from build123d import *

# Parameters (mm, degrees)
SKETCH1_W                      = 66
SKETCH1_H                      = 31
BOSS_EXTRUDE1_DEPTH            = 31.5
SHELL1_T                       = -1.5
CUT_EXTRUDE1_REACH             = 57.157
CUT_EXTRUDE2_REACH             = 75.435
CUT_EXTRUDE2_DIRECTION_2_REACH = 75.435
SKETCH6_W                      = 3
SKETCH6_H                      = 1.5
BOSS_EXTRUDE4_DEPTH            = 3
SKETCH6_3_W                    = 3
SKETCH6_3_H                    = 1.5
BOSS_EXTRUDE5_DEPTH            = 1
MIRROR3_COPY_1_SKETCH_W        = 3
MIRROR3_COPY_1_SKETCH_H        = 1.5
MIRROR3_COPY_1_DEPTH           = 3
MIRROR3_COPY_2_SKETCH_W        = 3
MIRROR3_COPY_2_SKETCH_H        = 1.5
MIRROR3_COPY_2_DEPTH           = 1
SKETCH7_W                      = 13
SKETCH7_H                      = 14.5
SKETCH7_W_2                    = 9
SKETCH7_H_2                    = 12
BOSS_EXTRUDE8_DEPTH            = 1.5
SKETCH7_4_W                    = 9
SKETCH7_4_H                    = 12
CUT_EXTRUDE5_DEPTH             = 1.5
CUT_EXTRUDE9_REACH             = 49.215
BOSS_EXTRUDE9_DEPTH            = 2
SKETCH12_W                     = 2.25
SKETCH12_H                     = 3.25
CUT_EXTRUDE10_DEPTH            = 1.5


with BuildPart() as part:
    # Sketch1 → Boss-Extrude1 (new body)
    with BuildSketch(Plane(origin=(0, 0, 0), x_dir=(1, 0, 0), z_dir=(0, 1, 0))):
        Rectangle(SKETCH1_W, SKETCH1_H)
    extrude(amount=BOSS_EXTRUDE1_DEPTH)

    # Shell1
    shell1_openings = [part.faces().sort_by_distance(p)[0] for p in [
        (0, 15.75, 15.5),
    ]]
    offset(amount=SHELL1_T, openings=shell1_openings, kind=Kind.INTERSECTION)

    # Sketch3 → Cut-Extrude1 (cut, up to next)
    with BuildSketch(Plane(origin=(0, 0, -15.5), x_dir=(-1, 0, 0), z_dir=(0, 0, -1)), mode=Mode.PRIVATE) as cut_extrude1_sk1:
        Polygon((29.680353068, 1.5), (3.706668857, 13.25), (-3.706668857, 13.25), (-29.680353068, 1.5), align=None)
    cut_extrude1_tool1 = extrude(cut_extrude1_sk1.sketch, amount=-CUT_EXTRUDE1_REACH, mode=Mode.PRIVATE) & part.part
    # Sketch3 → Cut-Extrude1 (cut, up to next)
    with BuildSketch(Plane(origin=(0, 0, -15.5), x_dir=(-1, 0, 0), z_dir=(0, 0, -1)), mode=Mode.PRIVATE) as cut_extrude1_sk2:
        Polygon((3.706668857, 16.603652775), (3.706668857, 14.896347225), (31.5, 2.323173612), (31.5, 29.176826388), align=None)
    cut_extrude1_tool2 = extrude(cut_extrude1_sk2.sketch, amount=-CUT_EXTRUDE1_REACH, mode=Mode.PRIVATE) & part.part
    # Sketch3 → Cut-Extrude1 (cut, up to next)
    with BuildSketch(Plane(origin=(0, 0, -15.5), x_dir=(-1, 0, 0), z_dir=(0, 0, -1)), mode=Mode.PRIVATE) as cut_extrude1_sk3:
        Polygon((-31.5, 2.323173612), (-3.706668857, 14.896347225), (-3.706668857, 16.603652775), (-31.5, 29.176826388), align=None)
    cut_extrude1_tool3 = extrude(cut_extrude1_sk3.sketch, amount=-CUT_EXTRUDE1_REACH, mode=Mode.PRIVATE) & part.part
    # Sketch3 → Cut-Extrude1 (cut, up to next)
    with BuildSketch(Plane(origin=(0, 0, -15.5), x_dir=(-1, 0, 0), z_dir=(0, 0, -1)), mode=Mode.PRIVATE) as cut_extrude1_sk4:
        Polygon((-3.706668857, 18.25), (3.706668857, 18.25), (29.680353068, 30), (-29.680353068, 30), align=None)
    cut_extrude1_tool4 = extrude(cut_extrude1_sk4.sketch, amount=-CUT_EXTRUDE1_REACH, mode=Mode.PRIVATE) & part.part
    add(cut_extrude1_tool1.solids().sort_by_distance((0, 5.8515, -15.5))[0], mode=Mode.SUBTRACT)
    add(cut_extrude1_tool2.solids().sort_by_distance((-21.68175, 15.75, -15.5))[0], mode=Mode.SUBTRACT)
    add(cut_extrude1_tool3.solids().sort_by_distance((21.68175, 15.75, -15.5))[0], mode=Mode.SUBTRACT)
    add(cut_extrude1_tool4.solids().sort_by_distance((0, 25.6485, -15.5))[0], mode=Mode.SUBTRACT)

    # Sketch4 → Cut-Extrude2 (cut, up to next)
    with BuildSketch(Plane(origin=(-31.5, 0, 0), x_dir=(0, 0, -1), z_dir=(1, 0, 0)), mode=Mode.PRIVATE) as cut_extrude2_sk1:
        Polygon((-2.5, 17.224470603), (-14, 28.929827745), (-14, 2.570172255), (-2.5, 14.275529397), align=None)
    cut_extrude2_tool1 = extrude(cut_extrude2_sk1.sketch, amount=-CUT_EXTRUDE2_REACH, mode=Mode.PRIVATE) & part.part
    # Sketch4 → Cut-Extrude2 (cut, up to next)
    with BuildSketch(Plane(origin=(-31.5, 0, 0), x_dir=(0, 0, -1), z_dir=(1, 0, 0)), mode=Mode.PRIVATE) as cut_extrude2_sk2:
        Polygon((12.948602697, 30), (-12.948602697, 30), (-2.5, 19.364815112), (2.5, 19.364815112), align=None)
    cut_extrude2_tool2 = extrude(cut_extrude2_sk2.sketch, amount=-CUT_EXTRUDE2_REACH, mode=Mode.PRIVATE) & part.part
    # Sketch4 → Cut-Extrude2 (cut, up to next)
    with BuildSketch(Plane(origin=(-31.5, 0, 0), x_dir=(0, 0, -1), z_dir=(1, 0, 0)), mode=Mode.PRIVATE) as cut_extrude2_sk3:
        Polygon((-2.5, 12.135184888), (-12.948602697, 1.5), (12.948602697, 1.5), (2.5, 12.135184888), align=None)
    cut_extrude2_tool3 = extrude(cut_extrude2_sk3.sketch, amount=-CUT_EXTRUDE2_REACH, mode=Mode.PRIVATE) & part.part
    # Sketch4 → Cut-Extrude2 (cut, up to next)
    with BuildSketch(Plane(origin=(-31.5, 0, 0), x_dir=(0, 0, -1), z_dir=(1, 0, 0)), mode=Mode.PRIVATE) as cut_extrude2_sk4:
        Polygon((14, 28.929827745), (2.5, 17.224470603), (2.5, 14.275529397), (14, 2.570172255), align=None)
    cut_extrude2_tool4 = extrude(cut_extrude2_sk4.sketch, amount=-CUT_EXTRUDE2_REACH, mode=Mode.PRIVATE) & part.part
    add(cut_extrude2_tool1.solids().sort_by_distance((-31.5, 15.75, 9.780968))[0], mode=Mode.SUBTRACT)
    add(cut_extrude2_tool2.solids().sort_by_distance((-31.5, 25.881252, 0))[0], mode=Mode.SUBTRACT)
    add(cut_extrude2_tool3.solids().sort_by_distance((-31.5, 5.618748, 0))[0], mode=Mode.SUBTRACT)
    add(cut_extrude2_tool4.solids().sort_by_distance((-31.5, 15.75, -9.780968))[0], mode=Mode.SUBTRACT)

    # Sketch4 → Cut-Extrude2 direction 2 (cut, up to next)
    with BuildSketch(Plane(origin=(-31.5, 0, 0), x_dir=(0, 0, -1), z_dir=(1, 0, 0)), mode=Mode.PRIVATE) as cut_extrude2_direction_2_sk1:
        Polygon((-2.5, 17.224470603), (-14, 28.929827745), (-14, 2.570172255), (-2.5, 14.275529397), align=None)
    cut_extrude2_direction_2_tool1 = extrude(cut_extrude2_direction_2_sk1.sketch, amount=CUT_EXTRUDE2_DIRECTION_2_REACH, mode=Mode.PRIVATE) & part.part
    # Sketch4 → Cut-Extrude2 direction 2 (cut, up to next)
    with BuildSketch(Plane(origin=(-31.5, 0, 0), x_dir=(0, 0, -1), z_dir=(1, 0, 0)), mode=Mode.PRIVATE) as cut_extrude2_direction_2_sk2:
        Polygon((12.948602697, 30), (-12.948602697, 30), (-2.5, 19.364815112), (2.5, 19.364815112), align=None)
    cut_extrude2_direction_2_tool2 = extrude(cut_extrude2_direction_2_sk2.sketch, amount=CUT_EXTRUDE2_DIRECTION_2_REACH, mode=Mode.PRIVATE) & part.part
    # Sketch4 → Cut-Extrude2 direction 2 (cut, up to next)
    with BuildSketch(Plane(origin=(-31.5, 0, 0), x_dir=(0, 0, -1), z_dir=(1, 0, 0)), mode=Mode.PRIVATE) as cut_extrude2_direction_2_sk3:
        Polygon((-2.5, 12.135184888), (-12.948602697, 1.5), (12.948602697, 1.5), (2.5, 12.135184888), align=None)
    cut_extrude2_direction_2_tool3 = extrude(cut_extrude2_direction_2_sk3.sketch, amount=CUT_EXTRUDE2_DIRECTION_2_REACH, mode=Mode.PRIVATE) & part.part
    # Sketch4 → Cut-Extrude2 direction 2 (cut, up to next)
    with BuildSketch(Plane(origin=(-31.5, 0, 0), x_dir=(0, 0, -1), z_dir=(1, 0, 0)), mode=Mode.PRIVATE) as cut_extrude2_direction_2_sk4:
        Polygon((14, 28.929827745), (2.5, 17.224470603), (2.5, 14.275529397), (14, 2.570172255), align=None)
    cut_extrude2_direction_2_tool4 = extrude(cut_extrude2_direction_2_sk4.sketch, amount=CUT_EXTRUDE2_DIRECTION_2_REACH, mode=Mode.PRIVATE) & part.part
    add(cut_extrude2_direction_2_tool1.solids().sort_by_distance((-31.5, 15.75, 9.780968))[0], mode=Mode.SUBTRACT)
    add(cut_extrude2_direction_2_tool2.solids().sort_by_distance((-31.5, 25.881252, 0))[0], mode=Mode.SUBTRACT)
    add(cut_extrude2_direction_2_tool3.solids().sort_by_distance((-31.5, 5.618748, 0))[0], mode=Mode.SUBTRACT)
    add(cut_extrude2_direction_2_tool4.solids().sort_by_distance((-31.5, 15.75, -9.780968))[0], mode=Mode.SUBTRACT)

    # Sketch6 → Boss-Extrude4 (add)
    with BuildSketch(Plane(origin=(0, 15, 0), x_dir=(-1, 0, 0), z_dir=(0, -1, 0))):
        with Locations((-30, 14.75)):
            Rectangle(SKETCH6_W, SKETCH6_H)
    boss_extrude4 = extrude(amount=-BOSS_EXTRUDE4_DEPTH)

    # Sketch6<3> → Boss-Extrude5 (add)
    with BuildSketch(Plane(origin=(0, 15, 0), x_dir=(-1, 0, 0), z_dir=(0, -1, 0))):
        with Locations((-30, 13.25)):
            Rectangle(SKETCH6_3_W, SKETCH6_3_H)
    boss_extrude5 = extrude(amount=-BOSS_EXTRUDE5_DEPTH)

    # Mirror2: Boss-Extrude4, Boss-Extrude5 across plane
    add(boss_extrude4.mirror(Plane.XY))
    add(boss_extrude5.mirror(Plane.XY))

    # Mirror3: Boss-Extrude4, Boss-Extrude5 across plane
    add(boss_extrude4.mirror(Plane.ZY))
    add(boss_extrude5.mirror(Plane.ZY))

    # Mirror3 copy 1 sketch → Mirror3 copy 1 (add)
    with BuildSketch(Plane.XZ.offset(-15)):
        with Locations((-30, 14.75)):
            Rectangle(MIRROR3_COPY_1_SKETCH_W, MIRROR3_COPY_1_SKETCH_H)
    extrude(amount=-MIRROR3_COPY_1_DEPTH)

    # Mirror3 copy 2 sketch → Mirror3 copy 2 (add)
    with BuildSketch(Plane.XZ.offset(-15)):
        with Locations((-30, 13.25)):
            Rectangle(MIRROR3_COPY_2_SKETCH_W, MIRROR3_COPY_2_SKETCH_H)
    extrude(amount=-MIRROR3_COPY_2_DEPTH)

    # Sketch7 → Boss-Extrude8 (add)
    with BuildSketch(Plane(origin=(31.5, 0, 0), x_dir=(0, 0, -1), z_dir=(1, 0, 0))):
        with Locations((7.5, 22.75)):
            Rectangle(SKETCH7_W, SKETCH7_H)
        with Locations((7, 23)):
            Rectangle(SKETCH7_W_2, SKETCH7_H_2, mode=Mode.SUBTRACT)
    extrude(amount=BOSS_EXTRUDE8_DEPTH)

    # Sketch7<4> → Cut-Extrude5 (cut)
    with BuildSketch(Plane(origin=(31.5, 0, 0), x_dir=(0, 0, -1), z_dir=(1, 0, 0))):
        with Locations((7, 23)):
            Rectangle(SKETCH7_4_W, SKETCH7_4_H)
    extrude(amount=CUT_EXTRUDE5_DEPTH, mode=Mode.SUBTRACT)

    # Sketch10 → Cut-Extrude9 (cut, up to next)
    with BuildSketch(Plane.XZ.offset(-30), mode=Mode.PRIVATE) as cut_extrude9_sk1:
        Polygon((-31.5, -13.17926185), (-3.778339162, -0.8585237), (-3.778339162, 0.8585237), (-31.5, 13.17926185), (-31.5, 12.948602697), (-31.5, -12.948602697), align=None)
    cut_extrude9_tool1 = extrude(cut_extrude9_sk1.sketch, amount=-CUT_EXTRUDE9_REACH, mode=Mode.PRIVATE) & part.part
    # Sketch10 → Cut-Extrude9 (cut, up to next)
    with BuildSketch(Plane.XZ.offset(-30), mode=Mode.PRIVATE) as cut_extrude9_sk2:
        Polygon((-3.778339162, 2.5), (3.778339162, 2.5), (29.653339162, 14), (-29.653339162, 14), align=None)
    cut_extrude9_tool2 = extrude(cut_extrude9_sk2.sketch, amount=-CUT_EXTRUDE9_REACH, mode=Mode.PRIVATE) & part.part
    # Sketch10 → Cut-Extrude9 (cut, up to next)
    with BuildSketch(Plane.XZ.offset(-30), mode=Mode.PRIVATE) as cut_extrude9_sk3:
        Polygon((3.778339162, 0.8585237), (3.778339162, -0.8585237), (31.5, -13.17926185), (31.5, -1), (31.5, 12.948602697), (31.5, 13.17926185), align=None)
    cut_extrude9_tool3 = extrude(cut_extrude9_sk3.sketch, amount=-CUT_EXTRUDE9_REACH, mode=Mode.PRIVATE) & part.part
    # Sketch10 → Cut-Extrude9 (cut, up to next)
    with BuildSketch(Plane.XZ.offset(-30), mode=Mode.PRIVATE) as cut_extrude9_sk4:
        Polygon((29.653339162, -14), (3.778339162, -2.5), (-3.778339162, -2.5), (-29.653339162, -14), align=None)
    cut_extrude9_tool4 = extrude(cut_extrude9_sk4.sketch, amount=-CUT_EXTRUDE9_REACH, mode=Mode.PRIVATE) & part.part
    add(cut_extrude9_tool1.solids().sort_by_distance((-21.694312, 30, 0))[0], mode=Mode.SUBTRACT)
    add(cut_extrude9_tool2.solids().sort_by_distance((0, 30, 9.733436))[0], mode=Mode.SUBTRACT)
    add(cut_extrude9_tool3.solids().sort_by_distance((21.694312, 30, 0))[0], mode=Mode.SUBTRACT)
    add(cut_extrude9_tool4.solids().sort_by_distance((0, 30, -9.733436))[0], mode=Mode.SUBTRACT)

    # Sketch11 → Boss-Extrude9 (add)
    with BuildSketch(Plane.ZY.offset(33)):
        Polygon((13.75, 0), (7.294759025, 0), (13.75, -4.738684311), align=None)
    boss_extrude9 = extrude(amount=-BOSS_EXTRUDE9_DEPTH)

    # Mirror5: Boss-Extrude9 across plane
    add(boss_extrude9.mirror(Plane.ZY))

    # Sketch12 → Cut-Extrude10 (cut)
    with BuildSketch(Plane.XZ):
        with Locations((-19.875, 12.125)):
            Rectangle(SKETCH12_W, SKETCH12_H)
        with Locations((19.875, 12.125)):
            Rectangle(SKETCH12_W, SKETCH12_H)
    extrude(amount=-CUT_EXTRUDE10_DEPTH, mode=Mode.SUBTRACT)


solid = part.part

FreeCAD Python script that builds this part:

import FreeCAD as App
import Part
import Sketcher

V = App.Vector
Q = App.Units.Quantity


def faces_at(feature, points):
    """Names of the faces that lie closest to the given points."""
    faces = feature.Shape.Faces
    near = lambda p: min(range(len(faces)), key=lambda i: faces[i].distToShape(Part.Vertex(*p))[0])
    return sorted({f"Face{near(p) + 1}" for p in points})


def add_polygon(sketch, points):
    """Adds a closed chain of lines whose ends are joined by coincident constraints."""
    first, n = sketch.GeometryCount, len(points)
    for a, b in zip(points, points[1:] + points[:1]):
        sketch.addGeometry(Part.LineSegment(App.Vector(*a, 0), App.Vector(*b, 0)), False)
    for i in range(n):
        sketch.addConstraint(Sketcher.Constraint("Coincident", first + i, 2, first + (i + 1) % n, 1))

doc = App.newDocument("Part")
body = doc.addObject("PartDesign::Body", "Body")

# Sketch on XZ plane
sketch1 = body.newObject("Sketcher::SketchObject", "Sketch")
sketch1.AttachmentSupport = (doc.getObject("XZ_Plane"), [""])
sketch1.MapMode = "FlatFace"
add_polygon(sketch1, [(-33, -15.5), (-33, 15.5), (33, 15.5), (33, -15.5)])  # lines 0-3
sketch1.addConstraint(Sketcher.Constraint("Vertical", 0))
sketch1.addConstraint(Sketcher.Constraint("Horizontal", 1))
sketch1.addConstraint(Sketcher.Constraint("Vertical", 2))
sketch1.addConstraint(Sketcher.Constraint("Horizontal", 3))
sketch1.addConstraint(Sketcher.Constraint("Symmetric", 0, 2, 2, 2, -1, 1))
sketch1.addConstraint(Sketcher.Constraint("DistanceX", 1, 1, 1, 2, Q("66 mm")))
sketch1.addConstraint(Sketcher.Constraint("DistanceY", 0, 1, 0, 2, Q("31 mm")))
pad1 = body.newObject("PartDesign::Pad", "Pad")
pad1.Profile = sketch1
pad1.Length = 31.5
pad1.Reversed = True
doc.recompute()

thickness = body.newObject("PartDesign::Thickness", "Thickness")
thickness.Base = (pad1, faces_at(pad1, [(0, 15.75, 15.5)]))
thickness.Value = 1.5
thickness.Reversed = True
thickness.Join = "Intersection"

# Sketch on XY plane
sketch2 = body.newObject("Sketcher::SketchObject", "Sketch001")
sketch2.AttachmentSupport = (doc.getObject("XY_Plane"), [""])
sketch2.MapMode = "FlatFace"
sketch2.AttachmentOffset = App.Placement(V(0, 0, -15.5), App.Rotation())
add_polygon(sketch2, [(-29.680353, 1.5), (-3.706669, 13.25), (3.706669, 13.25), (29.680353, 1.5)])  # lines 0-3
sketch2.addConstraint(Sketcher.Constraint("Horizontal", 1))
sketch2.addConstraint(Sketcher.Constraint("Horizontal", 3))
sketch2.addConstraint(Sketcher.Constraint("Equal", 0, 2))
sketch2.addConstraint(Sketcher.Constraint("DistanceY", -1, 1, 2, 2, Q("1.5 mm")))
sketch2.addConstraint(Sketcher.Constraint("DistanceY", -1, 1, 0, 2, Q("13.25 mm")))
sketch2.addConstraint(Sketcher.Constraint("Distance", 0, Q("28.507802 mm")))
sketch2.addConstraint(Sketcher.Constraint("DistanceX", 1, 1, 1, 2, Q("7.413338 mm")))
sketch2.addConstraint(Sketcher.Constraint("DistanceX", 0, 2, -1, 1, Q("3.706669 mm")))
pocket1 = body.newObject("PartDesign::Pocket", "Pocket")
pocket1.Profile = sketch2
pocket1.Type = "UpToFirst"
pocket1.Reversed = True

# Sketch on XY plane
sketch3 = body.newObject("Sketcher::SketchObject", "Sketch002")
sketch3.AttachmentSupport = (doc.getObject("XY_Plane"), [""])
sketch3.MapMode = "FlatFace"
sketch3.AttachmentOffset = App.Placement(V(0, 0, -15.5), App.Rotation())
add_polygon(sketch3, [(-3.706669, 16.603653), (-3.706669, 14.896347), (-31.5, 2.323174), (-31.5, 29.176826)])  # lines 0-3
sketch3.addConstraint(Sketcher.Constraint("Vertical", 0))
sketch3.addConstraint(Sketcher.Constraint("Vertical", 2))
sketch3.addConstraint(Sketcher.Constraint("Equal", 1, 3))
sketch3.addConstraint(Sketcher.Constraint("DistanceX", 1, 2, -1, 1, Q("31.5 mm")))
sketch3.addConstraint(Sketcher.Constraint("DistanceY", 0, 2, 0, 1, Q("1.707306 mm")))
sketch3.addConstraint(Sketcher.Constraint("DistanceY", 2, 1, 2, 2, Q("26.853653 mm")))
sketch3.addConstraint(Sketcher.Constraint("DistanceX", 0, 2, -1, 1, Q("3.706669 mm")))
sketch3.addConstraint(Sketcher.Constraint("DistanceY", -1, 1, 0, 2, Q("14.896347 mm")))
pocket2 = body.newObject("PartDesign::Pocket", "Pocket001")
pocket2.Profile = sketch3
pocket2.Type = "UpToFirst"
pocket2.Reversed = True

# Sketch on XY plane
sketch4 = body.newObject("Sketcher::SketchObject", "Sketch003")
sketch4.AttachmentSupport = (doc.getObject("XY_Plane"), [""])
sketch4.MapMode = "FlatFace"
sketch4.AttachmentOffset = App.Placement(V(0, 0, -15.5), App.Rotation())
add_polygon(sketch4, [(31.5, 2.323174), (3.706669, 14.896347), (3.706669, 16.603653), (31.5, 29.176826)])  # lines 0-3
sketch4.addConstraint(Sketcher.Constraint("Vertical", 1))
sketch4.addConstraint(Sketcher.Constraint("Vertical", 3))
sketch4.addConstraint(Sketcher.Constraint("Equal", 0, 2))
sketch4.addConstraint(Sketcher.Constraint("DistanceX", -1, 1, 2, 2, Q("31.5 mm")))
sketch4.addConstraint(Sketcher.Constraint("DistanceY", 1, 1, 1, 2, Q("1.707306 mm")))
sketch4.addConstraint(Sketcher.Constraint("DistanceY", 3, 2, 3, 1, Q("26.853653 mm")))
sketch4.addConstraint(Sketcher.Constraint("DistanceX", -1, 1, 0, 2, Q("3.706669 mm")))
sketch4.addConstraint(Sketcher.Constraint("DistanceY", -1, 1, 0, 2, Q("14.896347 mm")))
pocket3 = body.newObject("PartDesign::Pocket", "Pocket002")
pocket3.Profile = sketch4
pocket3.Type = "UpToFirst"
pocket3.Reversed = True

# Sketch on XY plane
sketch5 = body.newObject("Sketcher::SketchObject", "Sketch004")
sketch5.AttachmentSupport = (doc.getObject("XY_Plane"), [""])
sketch5.MapMode = "FlatFace"
sketch5.AttachmentOffset = App.Placement(V(0, 0, -15.5), App.Rotation())
add_polygon(sketch5, [(3.706669, 18.25), (-3.706669, 18.25), (-29.680353, 30), (29.680353, 30)])  # lines 0-3
sketch5.addConstraint(Sketcher.Constraint("Horizontal", 0))
sketch5.addConstraint(Sketcher.Constraint("Horizontal", 2))
sketch5.addConstraint(Sketcher.Constraint("Equal", 1, 3))
sketch5.addConstraint(Sketcher.Constraint("DistanceY", -1, 1, 1, 2, Q("30 mm")))
sketch5.addConstraint(Sketcher.Constraint("DistanceY", -1, 1, 0, 2, Q("18.25 mm")))
sketch5.addConstraint(Sketcher.Constraint("Distance", 1, Q("28.507802 mm")))
sketch5.addConstraint(Sketcher.Constraint("DistanceX", 0, 2, 0, 1, Q("7.413338 mm")))
sketch5.addConstraint(Sketcher.Constraint("DistanceX", 0, 2, -1, 1, Q("3.706669 mm")))
pocket4 = body.newObject("PartDesign::Pocket", "Pocket003")
pocket4.Profile = sketch5
pocket4.Type = "UpToFirst"
pocket4.Reversed = True

# Sketch on YZ plane
sketch6 = body.newObject("Sketcher::SketchObject", "Sketch005")
sketch6.AttachmentSupport = (doc.getObject("YZ_Plane"), [""])
sketch6.MapMode = "FlatFace"
sketch6.AttachmentOffset = App.Placement(V(0, 0, -31.5), App.Rotation())
add_polygon(sketch6, [(17.224471, 2.5), (28.929828, 14), (2.570172, 14), (14.275529, 2.5)])  # lines 0-3
sketch6.addConstraint(Sketcher.Constraint("Horizontal", 1))
sketch6.addConstraint(Sketcher.Constraint("Horizontal", 3))
sketch6.addConstraint(Sketcher.Constraint("Equal", 0, 2))
sketch6.addConstraint(Sketcher.Constraint("DistanceY", -1, 1, 0, 2, Q("14 mm")))
sketch6.addConstraint(Sketcher.Constraint("DistanceY", -1, 1, 2, 2, Q("2.5 mm")))
sketch6.addConstraint(Sketcher.Constraint("DistanceX", 3, 1, 3, 2, Q("2.948941 mm")))
sketch6.addConstraint(Sketcher.Constraint("DistanceX", 2, 2, 0, 2, Q("14.654298 mm")))
sketch6.addConstraint(Sketcher.Constraint("DistanceX", -1, 1, 2, 2, Q("14.275529 mm")))
pocket5 = body.newObject("PartDesign::Pocket", "Pocket004")
pocket5.Profile = sketch6
pocket5.Type = "UpToFirst"

# Sketch on YZ plane
sketch7 = body.newObject("Sketcher::SketchObject", "Sketch006")
sketch7.AttachmentSupport = (doc.getObject("YZ_Plane"), [""])
sketch7.MapMode = "FlatFace"
sketch7.AttachmentOffset = App.Placement(V(0, 0, -31.5), App.Rotation())
add_polygon(sketch7, [(30, -12.948603), (30, 12.948603), (19.364815, 2.5), (19.364815, -2.5)])  # lines 0-3
sketch7.addConstraint(Sketcher.Constraint("Vertical", 0))
sketch7.addConstraint(Sketcher.Constraint("Vertical", 2))
sketch7.addConstraint(Sketcher.Constraint("Equal", 1, 3))
sketch7.addConstraint(Sketcher.Constraint("DistanceY", 2, 2, 2, 1, Q("5 mm")))
sketch7.addConstraint(Sketcher.Constraint("DistanceX", -1, 1, 0, 2, Q("30 mm")))
sketch7.addConstraint(Sketcher.Constraint("DistanceY", -1, 1, 1, 2, Q("2.5 mm")))
sketch7.addConstraint(Sketcher.Constraint("DistanceY", 0, 1, 0, 2, Q("25.897205 mm")))
sketch7.addConstraint(Sketcher.Constraint("Distance", 1, Q("14.909073 mm")))
pocket6 = body.newObject("PartDesign::Pocket", "Pocket005")
pocket6.Profile = sketch7
pocket6.Type = "UpToFirst"

# Sketch on YZ plane
sketch8 = body.newObject("Sketcher::SketchObject", "Sketch007")
sketch8.AttachmentSupport = (doc.getObject("YZ_Plane"), [""])
sketch8.MapMode = "FlatFace"
sketch8.AttachmentOffset = App.Placement(V(0, 0, -31.5), App.Rotation())
add_polygon(sketch8, [(12.135185, 2.5), (1.5, 12.948603), (1.5, -12.948603), (12.135185, -2.5)])  # lines 0-3
sketch8.addConstraint(Sketcher.Constraint("Vertical", 1))
sketch8.addConstraint(Sketcher.Constraint("Vertical", 3))
sketch8.addConstraint(Sketcher.Constraint("Equal", 0, 2))
sketch8.addConstraint(Sketcher.Constraint("DistanceY", 3, 1, 3, 2, Q("5 mm")))
sketch8.addConstraint(Sketcher.Constraint("DistanceX", -1, 1, 0, 2, Q("1.5 mm")))
sketch8.addConstraint(Sketcher.Constraint("DistanceY", 2, 2, -1, 1, Q("2.5 mm")))
sketch8.addConstraint(Sketcher.Constraint("DistanceY", 1, 2, 1, 1, Q("25.897205 mm")))
sketch8.addConstraint(Sketcher.Constraint("Distance", 0, Q("14.909073 mm")))
pocket7 = body.newObject("PartDesign::Pocket", "Pocket006")
pocket7.Profile = sketch8
pocket7.Type = "UpToFirst"

# Sketch on YZ plane
sketch9 = body.newObject("Sketcher::SketchObject", "Sketch008")
sketch9.AttachmentSupport = (doc.getObject("YZ_Plane"), [""])
sketch9.MapMode = "FlatFace"
sketch9.AttachmentOffset = App.Placement(V(0, 0, -31.5), App.Rotation())
add_polygon(sketch9, [(28.929828, -14), (17.224471, -2.5), (14.275529, -2.5), (2.570172, -14)])  # lines 0-3
sketch9.addConstraint(Sketcher.Constraint("Horizontal", 1))
sketch9.addConstraint(Sketcher.Constraint("Horizontal", 3))
sketch9.addConstraint(Sketcher.Constraint("Equal", 0, 2))
sketch9.addConstraint(Sketcher.Constraint("DistanceY", 2, 2, -1, 1, Q("14 mm")))
sketch9.addConstraint(Sketcher.Constraint("DistanceY", 0, 2, -1, 1, Q("2.5 mm")))
sketch9.addConstraint(Sketcher.Constraint("DistanceX", 1, 2, 1, 1, Q("2.948941 mm")))
sketch9.addConstraint(Sketcher.Constraint("DistanceX", 2, 2, 0, 2, Q("14.654298 mm")))
sketch9.addConstraint(Sketcher.Constraint("DistanceX", -1, 1, 0, 2, Q("17.224471 mm")))
pocket8 = body.newObject("PartDesign::Pocket", "Pocket007")
pocket8.Profile = sketch9
pocket8.Type = "UpToFirst"

# Sketch on YZ plane
sketch10 = body.newObject("Sketcher::SketchObject", "Sketch009")
sketch10.AttachmentSupport = (doc.getObject("YZ_Plane"), [""])
sketch10.MapMode = "FlatFace"
sketch10.AttachmentOffset = App.Placement(V(0, 0, -31.5), App.Rotation())
add_polygon(sketch10, [(17.224471, 2.5), (28.929828, 14), (2.570172, 14), (14.275529, 2.5)])  # lines 0-3
sketch10.addConstraint(Sketcher.Constraint("Horizontal", 1))
sketch10.addConstraint(Sketcher.Constraint("Horizontal", 3))
sketch10.addConstraint(Sketcher.Constraint("Equal", 0, 2))
sketch10.addConstraint(Sketcher.Constraint("DistanceY", -1, 1, 0, 2, Q("14 mm")))
sketch10.addConstraint(Sketcher.Constraint("DistanceY", -1, 1, 2, 2, Q("2.5 mm")))
sketch10.addConstraint(Sketcher.Constraint("DistanceX", 3, 1, 3, 2, Q("2.948941 mm")))
sketch10.addConstraint(Sketcher.Constraint("DistanceX", 2, 2, 0, 2, Q("14.654298 mm")))
sketch10.addConstraint(Sketcher.Constraint("DistanceX", -1, 1, 2, 2, Q("14.275529 mm")))
pocket9 = body.newObject("PartDesign::Pocket", "Pocket008")
pocket9.Profile = sketch10
pocket9.Length = 64.5
pocket9.Reversed = True

# Sketch on YZ plane
sketch11 = body.newObject("Sketcher::SketchObject", "Sketch010")
sketch11.AttachmentSupport = (doc.getObject("YZ_Plane"), [""])
sketch11.MapMode = "FlatFace"
sketch11.AttachmentOffset = App.Placement(V(0, 0, -31.5), App.Rotation())
add_polygon(sketch11, [(30, -12.948603), (30, 12.948603), (19.364815, 2.5), (19.364815, -2.5)])  # lines 0-3
sketch11.addConstraint(Sketcher.Constraint("Vertical", 0))
sketch11.addConstraint(Sketcher.Constraint("Vertical", 2))
sketch11.addConstraint(Sketcher.Constraint("Equal", 1, 3))
sketch11.addConstraint(Sketcher.Constraint("DistanceY", 2, 2, 2, 1, Q("5 mm")))
sketch11.addConstraint(Sketcher.Constraint("DistanceX", -1, 1, 0, 2, Q("30 mm")))
sketch11.addConstraint(Sketcher.Constraint("DistanceY", -1, 1, 1, 2, Q("2.5 mm")))
sketch11.addConstraint(Sketcher.Constraint("DistanceY", 0, 1, 0, 2, Q("25.897205 mm")))
sketch11.addConstraint(Sketcher.Constraint("Distance", 1, Q("14.909073 mm")))
pocket10 = body.newObject("PartDesign::Pocket", "Pocket009")
pocket10.Profile = sketch11
pocket10.Length = 64.5
pocket10.Reversed = True

# Sketch on YZ plane
sketch12 = body.newObject("Sketcher::SketchObject", "Sketch011")
sketch12.AttachmentSupport = (doc.getObject("YZ_Plane"), [""])
sketch12.MapMode = "FlatFace"
sketch12.AttachmentOffset = App.Placement(V(0, 0, -31.5), App.Rotation())
add_polygon(sketch12, [(12.135185, 2.5), (1.5, 12.948603), (1.5, -12.948603), (12.135185, -2.5)])  # lines 0-3
sketch12.addConstraint(Sketcher.Constraint("Vertical", 1))
sketch12.addConstraint(Sketcher.Constraint("Vertical", 3))
sketch12.addConstraint(Sketcher.Constraint("Equal", 0, 2))
sketch12.addConstraint(Sketcher.Constraint("DistanceY", 3, 1, 3, 2, Q("5 mm")))
sketch12.addConstraint(Sketcher.Constraint("DistanceX", -1, 1, 0, 2, Q("1.5 mm")))
sketch12.addConstraint(Sketcher.Constraint("DistanceY", 2, 2, -1, 1, Q("2.5 mm")))
sketch12.addConstraint(Sketcher.Constraint("DistanceY", 1, 2, 1, 1, Q("25.897205 mm")))
sketch12.addConstraint(Sketcher.Constraint("Distance", 0, Q("14.909073 mm")))
pocket11 = body.newObject("PartDesign::Pocket", "Pocket010")
pocket11.Profile = sketch12
pocket11.Length = 64.5
pocket11.Reversed = True

# Sketch on YZ plane
sketch13 = body.newObject("Sketcher::SketchObject", "Sketch012")
sketch13.AttachmentSupport = (doc.getObject("YZ_Plane"), [""])
sketch13.MapMode = "FlatFace"
sketch13.AttachmentOffset = App.Placement(V(0, 0, -31.5), App.Rotation())
add_polygon(sketch13, [(28.929828, -14), (17.224471, -2.5), (14.275529, -2.5), (2.570172, -14)])  # lines 0-3
sketch13.addConstraint(Sketcher.Constraint("Horizontal", 1))
sketch13.addConstraint(Sketcher.Constraint("Horizontal", 3))
sketch13.addConstraint(Sketcher.Constraint("Equal", 0, 2))
sketch13.addConstraint(Sketcher.Constraint("DistanceY", 2, 2, -1, 1, Q("14 mm")))
sketch13.addConstraint(Sketcher.Constraint("DistanceY", 0, 2, -1, 1, Q("2.5 mm")))
sketch13.addConstraint(Sketcher.Constraint("DistanceX", 1, 2, 1, 1, Q("2.948941 mm")))
sketch13.addConstraint(Sketcher.Constraint("DistanceX", 2, 2, 0, 2, Q("14.654298 mm")))
sketch13.addConstraint(Sketcher.Constraint("DistanceX", -1, 1, 0, 2, Q("17.224471 mm")))
pocket12 = body.newObject("PartDesign::Pocket", "Pocket011")
pocket12.Profile = sketch13
pocket12.Length = 64.5
pocket12.Reversed = True

# Sketch on XZ plane
sketch14 = body.newObject("Sketcher::SketchObject", "Sketch013")
sketch14.AttachmentSupport = (doc.getObject("XZ_Plane"), [""])
sketch14.MapMode = "FlatFace"
sketch14.AttachmentOffset = App.Placement(V(0, 0, -15), App.Rotation())
add_polygon(sketch14, [(31.5, -15.5), (31.5, -14), (28.5, -14), (28.5, -15.5)])  # lines 0-3
sketch14.addConstraint(Sketcher.Constraint("Vertical", 0))
sketch14.addConstraint(Sketcher.Constraint("Horizontal", 1))
sketch14.addConstraint(Sketcher.Constraint("Vertical", 2))
sketch14.addConstraint(Sketcher.Constraint("Horizontal", 3))
sketch14.addConstraint(Sketcher.Constraint("DistanceX", 1, 2, 1, 1, Q("3 mm")))
sketch14.addConstraint(Sketcher.Constraint("DistanceY", 0, 1, 0, 2, Q("1.5 mm")))
sketch14.addConstraint(Sketcher.Constraint("DistanceY", 0, 2, -1, 1, Q("14 mm")))
sketch14.addConstraint(Sketcher.Constraint("DistanceX", -1, 1, 0, 2, Q("31.5 mm")))
pad2 = body.newObject("PartDesign::Pad", "Pad001")
pad2.Profile = sketch14
pad2.Length = 3
pad2.Reversed = True

# Sketch on XZ plane
sketch15 = body.newObject("Sketcher::SketchObject", "Sketch014")
sketch15.AttachmentSupport = (doc.getObject("XZ_Plane"), [""])
sketch15.MapMode = "FlatFace"
sketch15.AttachmentOffset = App.Placement(V(0, 0, -15), App.Rotation())
add_polygon(sketch15, [(31.5, -14), (31.5, -12.5), (28.5, -12.5), (28.5, -14)])  # lines 0-3
sketch15.addConstraint(Sketcher.Constraint("Vertical", 0))
sketch15.addConstraint(Sketcher.Constraint("Horizontal", 1))
sketch15.addConstraint(Sketcher.Constraint("Vertical", 2))
sketch15.addConstraint(Sketcher.Constraint("Horizontal", 3))
sketch15.addConstraint(Sketcher.Constraint("DistanceX", 1, 2, 1, 1, Q("3 mm")))
sketch15.addConstraint(Sketcher.Constraint("DistanceY", 0, 1, 0, 2, Q("1.5 mm")))
sketch15.addConstraint(Sketcher.Constraint("DistanceY", 2, 2, -1, 1, Q("14 mm")))
sketch15.addConstraint(Sketcher.Constraint("DistanceX", -1, 1, 0, 2, Q("31.5 mm")))
pad3 = body.newObject("PartDesign::Pad", "Pad002")
pad3.Profile = sketch15
pad3.Length = 1
pad3.Reversed = True
doc.recompute()

mirrored = body.newObject("PartDesign::Mirrored", "Mirrored")
mirrored.Originals = [pad2, pad3]
mirrored.MirrorPlane = (doc.getObject("XY_Plane"), [""])
body.Tip = mirrored
doc.recompute()

mirrored2 = body.newObject("PartDesign::Mirrored", "Mirrored001")
mirrored2.Originals = [pad2, pad3]
mirrored2.MirrorPlane = (doc.getObject("YZ_Plane"), [""])
body.Tip = mirrored2

# Sketch on XZ plane
sketch16 = body.newObject("Sketcher::SketchObject", "Sketch015")
sketch16.AttachmentSupport = (doc.getObject("XZ_Plane"), [""])
sketch16.MapMode = "FlatFace"
sketch16.AttachmentOffset = App.Placement(V(0, 0, -15), App.Rotation())
add_polygon(sketch16, [(-31.5, 15.5), (-31.5, 14), (-28.5, 14), (-28.5, 15.5)])  # lines 0-3
sketch16.addConstraint(Sketcher.Constraint("Vertical", 0))
sketch16.addConstraint(Sketcher.Constraint("Horizontal", 1))
sketch16.addConstraint(Sketcher.Constraint("Vertical", 2))
sketch16.addConstraint(Sketcher.Constraint("Horizontal", 3))
sketch16.addConstraint(Sketcher.Constraint("DistanceX", 1, 1, 1, 2, Q("3 mm")))
sketch16.addConstraint(Sketcher.Constraint("DistanceY", 0, 2, 0, 1, Q("1.5 mm")))
sketch16.addConstraint(Sketcher.Constraint("DistanceY", -1, 1, 0, 2, Q("14 mm")))
sketch16.addConstraint(Sketcher.Constraint("DistanceX", 0, 2, -1, 1, Q("31.5 mm")))
pad4 = body.newObject("PartDesign::Pad", "Pad003")
pad4.Profile = sketch16
pad4.Length = 3
pad4.Reversed = True

# Sketch on XZ plane
sketch17 = body.newObject("Sketcher::SketchObject", "Sketch016")
sketch17.AttachmentSupport = (doc.getObject("XZ_Plane"), [""])
sketch17.MapMode = "FlatFace"
sketch17.AttachmentOffset = App.Placement(V(0, 0, -15), App.Rotation())
add_polygon(sketch17, [(-31.5, 14), (-31.5, 12.5), (-28.5, 12.5), (-28.5, 14)])  # lines 0-3
sketch17.addConstraint(Sketcher.Constraint("Vertical", 0))
sketch17.addConstraint(Sketcher.Constraint("Horizontal", 1))
sketch17.addConstraint(Sketcher.Constraint("Vertical", 2))
sketch17.addConstraint(Sketcher.Constraint("Horizontal", 3))
sketch17.addConstraint(Sketcher.Constraint("DistanceX", 1, 1, 1, 2, Q("3 mm")))
sketch17.addConstraint(Sketcher.Constraint("DistanceY", 0, 2, 0, 1, Q("1.5 mm")))
sketch17.addConstraint(Sketcher.Constraint("DistanceY", -1, 1, 2, 2, Q("14 mm")))
sketch17.addConstraint(Sketcher.Constraint("DistanceX", 0, 2, -1, 1, Q("31.5 mm")))
pad5 = body.newObject("PartDesign::Pad", "Pad004")
pad5.Profile = sketch17
pad5.Length = 1
pad5.Reversed = True

# Sketch on YZ plane
sketch18 = body.newObject("Sketcher::SketchObject", "Sketch017")
sketch18.AttachmentSupport = (doc.getObject("YZ_Plane"), [""])
sketch18.MapMode = "FlatFace"
sketch18.AttachmentOffset = App.Placement(V(0, 0, 31.5), App.Rotation())
add_polygon(sketch18, [(30, -1), (15.5, -1), (15.5, -14), (30, -14)])  # lines 0-3
add_polygon(sketch18, [(17, -11.5), (17, -2.5), (29, -2.5), (29, -11.5)])  # lines 4-7
sketch18.addConstraint(Sketcher.Constraint("Horizontal", 0))
sketch18.addConstraint(Sketcher.Constraint("Vertical", 1))
sketch18.addConstraint(Sketcher.Constraint("Horizontal", 2))
sketch18.addConstraint(Sketcher.Constraint("Vertical", 3))
sketch18.addConstraint(Sketcher.Constraint("Vertical", 4))
sketch18.addConstraint(Sketcher.Constraint("Horizontal", 5))
sketch18.addConstraint(Sketcher.Constraint("Vertical", 6))
sketch18.addConstraint(Sketcher.Constraint("Horizontal", 7))
sketch18.addConstraint(Sketcher.Constraint("DistanceX", 5, 1, 5, 2, Q("12 mm")))
sketch18.addConstraint(Sketcher.Constraint("DistanceY", 1, 2, 1, 1, Q("13 mm")))
sketch18.addConstraint(Sketcher.Constraint("DistanceY", 4, 1, 4, 2, Q("9 mm")))
sketch18.addConstraint(Sketcher.Constraint("DistanceX", 0, 2, 0, 1, Q("14.5 mm")))
sketch18.addConstraint(Sketcher.Constraint("DistanceY", 0, 2, -1, 1, Q("1 mm")))
sketch18.addConstraint(Sketcher.Constraint("DistanceX", -1, 1, 2, 2, Q("30 mm")))
sketch18.addConstraint(Sketcher.Constraint("DistanceX", -1, 1, 4, 2, Q("17 mm")))
sketch18.addConstraint(Sketcher.Constraint("DistanceY", 4, 2, -1, 1, Q("2.5 mm")))
pad6 = body.newObject("PartDesign::Pad", "Pad005")
pad6.Profile = sketch18
pad6.Length = 1.5

# Sketch on YZ plane
sketch19 = body.newObject("Sketcher::SketchObject", "Sketch018")
sketch19.AttachmentSupport = (doc.getObject("YZ_Plane"), [""])
sketch19.MapMode = "FlatFace"
sketch19.AttachmentOffset = App.Placement(V(0, 0, 31.5), App.Rotation())
add_polygon(sketch19, [(29, -2.5), (17, -2.5), (17, -11.5), (29, -11.5)])  # lines 0-3
sketch19.addConstraint(Sketcher.Constraint("Horizontal", 0))
sketch19.addConstraint(Sketcher.Constraint("Vertical", 1))
sketch19.addConstraint(Sketcher.Constraint("Horizontal", 2))
sketch19.addConstraint(Sketcher.Constraint("Vertical", 3))
sketch19.addConstraint(Sketcher.Constraint("DistanceX", 0, 2, 0, 1, Q("12 mm")))
sketch19.addConstraint(Sketcher.Constraint("DistanceY", 1, 2, 1, 1, Q("9 mm")))
sketch19.addConstraint(Sketcher.Constraint("DistanceX", -1, 1, 0, 2, Q("17 mm")))
sketch19.addConstraint(Sketcher.Constraint("DistanceY", 0, 2, -1, 1, Q("2.5 mm")))
pocket13 = body.newObject("PartDesign::Pocket", "Pocket012")
pocket13.Profile = sketch19
pocket13.Length = 1.5
pocket13.Reversed = True

# Sketch on XZ plane
sketch20 = body.newObject("Sketcher::SketchObject", "Sketch019")
sketch20.AttachmentSupport = (doc.getObject("XZ_Plane"), [""])
sketch20.MapMode = "FlatFace"
sketch20.AttachmentOffset = App.Placement(V(0, 0, -30), App.Rotation())
add_polygon(sketch20, [(-31.5, -13.179262), (-3.778339, -0.858524), (-3.778339, 0.858524), (-31.5, 13.179262)])  # lines 0-3
sketch20.addConstraint(Sketcher.Constraint("Vertical", 1))
sketch20.addConstraint(Sketcher.Constraint("Vertical", 3))
sketch20.addConstraint(Sketcher.Constraint("Equal", 0, 2))
sketch20.addConstraint(Sketcher.Constraint("DistanceX", 2, 2, -1, 1, Q("31.5 mm")))
sketch20.addConstraint(Sketcher.Constraint("Distance", 0, Q("30.3363 mm")))
sketch20.addConstraint(Sketcher.Constraint("DistanceY", 1, 1, 1, 2, Q("1.717047 mm")))
sketch20.addConstraint(Sketcher.Constraint("DistanceY", 3, 2, 3, 1, Q("26.358524 mm")))
sketch20.addConstraint(Sketcher.Constraint("DistanceY", -1, 1, 2, 2, Q("13.179262 mm")))
pocket14 = body.newObject("PartDesign::Pocket", "Pocket013")
pocket14.Profile = sketch20
pocket14.Type = "UpToFirst"

# Sketch on XZ plane
sketch21 = body.newObject("Sketcher::SketchObject", "Sketch020")
sketch21.AttachmentSupport = (doc.getObject("XZ_Plane"), [""])
sketch21.MapMode = "FlatFace"
sketch21.AttachmentOffset = App.Placement(V(0, 0, -30), App.Rotation())
add_polygon(sketch21, [(-3.778339, 2.5), (3.778339, 2.5), (29.653339, 14), (-29.653339, 14)])  # lines 0-3
sketch21.addConstraint(Sketcher.Constraint("Horizontal", 0))
sketch21.addConstraint(Sketcher.Constraint("Horizontal", 2))
sketch21.addConstraint(Sketcher.Constraint("Equal", 1, 3))
sketch21.addConstraint(Sketcher.Constraint("DistanceY", -1, 1, 1, 2, Q("14 mm")))
sketch21.addConstraint(Sketcher.Constraint("DistanceY", -1, 1, 0, 2, Q("2.5 mm")))
sketch21.addConstraint(Sketcher.Constraint("DistanceX", 0, 2, 1, 2, Q("25.875 mm")))
sketch21.addConstraint(Sketcher.Constraint("DistanceX", 0, 1, 0, 2, Q("7.556678 mm")))
sketch21.addConstraint(Sketcher.Constraint("DistanceX", -1, 1, 0, 2, Q("3.778339 mm")))
pocket15 = body.newObject("PartDesign::Pocket", "Pocket014")
pocket15.Profile = sketch21
pocket15.Type = "UpToFirst"

# Sketch on XZ plane
sketch22 = body.newObject("Sketcher::SketchObject", "Sketch021")
sketch22.AttachmentSupport = (doc.getObject("XZ_Plane"), [""])
sketch22.MapMode = "FlatFace"
sketch22.AttachmentOffset = App.Placement(V(0, 0, -30), App.Rotation())
add_polygon(sketch22, [(3.778339, 0.858524), (3.778339, -0.858524), (31.5, -13.179262), (31.5, 13.179262)])  # lines 0-3
sketch22.addConstraint(Sketcher.Constraint("Vertical", 0))
sketch22.addConstraint(Sketcher.Constraint("Vertical", 2))
sketch22.addConstraint(Sketcher.Constraint("Equal", 1, 3))
sketch22.addConstraint(Sketcher.Constraint("DistanceX", -1, 1, 1, 2, Q("31.5 mm")))
sketch22.addConstraint(Sketcher.Constraint("Distance", 1, Q("30.3363 mm")))
sketch22.addConstraint(Sketcher.Constraint("DistanceY", 0, 2, 0, 1, Q("1.717047 mm")))
sketch22.addConstraint(Sketcher.Constraint("DistanceY", 2, 1, 2, 2, Q("26.358524 mm")))
sketch22.addConstraint(Sketcher.Constraint("DistanceY", 1, 2, -1, 1, Q("13.179262 mm")))
pocket16 = body.newObject("PartDesign::Pocket", "Pocket015")
pocket16.Profile = sketch22
pocket16.Type = "UpToFirst"

# Sketch on XZ plane
sketch23 = body.newObject("Sketcher::SketchObject", "Sketch022")
sketch23.AttachmentSupport = (doc.getObject("XZ_Plane"), [""])
sketch23.MapMode = "FlatFace"
sketch23.AttachmentOffset = App.Placement(V(0, 0, -30), App.Rotation())
add_polygon(sketch23, [(29.653339, -14), (3.778339, -2.5), (-3.778339, -2.5), (-29.653339, -14)])  # lines 0-3
sketch23.addConstraint(Sketcher.Constraint("Horizontal", 1))
sketch23.addConstraint(Sketcher.Constraint("Horizontal", 3))
sketch23.addConstraint(Sketcher.Constraint("Equal", 0, 2))
sketch23.addConstraint(Sketcher.Constraint("DistanceY", 2, 2, -1, 1, Q("14 mm")))
sketch23.addConstraint(Sketcher.Constraint("DistanceY", 0, 2, -1, 1, Q("2.5 mm")))
sketch23.addConstraint(Sketcher.Constraint("DistanceX", 2, 2, 1, 2, Q("25.875 mm")))
sketch23.addConstraint(Sketcher.Constraint("DistanceX", 1, 2, 1, 1, Q("7.556678 mm")))
sketch23.addConstraint(Sketcher.Constraint("DistanceX", -1, 1, 0, 2, Q("3.778339 mm")))
pocket17 = body.newObject("PartDesign::Pocket", "Pocket016")
pocket17.Profile = sketch23
pocket17.Type = "UpToFirst"

# Sketch on YZ plane
sketch24 = body.newObject("Sketcher::SketchObject", "Sketch023")
sketch24.AttachmentSupport = (doc.getObject("YZ_Plane"), [""])
sketch24.MapMode = "FlatFace"
sketch24.AttachmentOffset = App.Placement(V(0, 0, -33), App.Rotation())
add_polygon(sketch24, [(0, 13.75), (0, 7.294759), (-4.738684, 13.75)])  # lines 0-2
sketch24.addConstraint(Sketcher.Constraint("Vertical", 0))
sketch24.addConstraint(Sketcher.Constraint("Horizontal", 2))
sketch24.addConstraint(Sketcher.Constraint("PointOnObject", 0, 2, -2))
sketch24.addConstraint(Sketcher.Constraint("DistanceY", -1, 1, 1, 2, Q("13.75 mm")))
sketch24.addConstraint(Sketcher.Constraint("DistanceY", 0, 2, 0, 1, Q("6.455241 mm")))
sketch24.addConstraint(Sketcher.Constraint("DistanceX", 2, 1, 2, 2, Q("4.738684 mm")))
pad7 = body.newObject("PartDesign::Pad", "Pad006")
pad7.Profile = sketch24
pad7.Length = 2
doc.recompute()

mirrored3 = body.newObject("PartDesign::Mirrored", "Mirrored002")
mirrored3.Originals = [pad7]
mirrored3.MirrorPlane = (doc.getObject("YZ_Plane"), [""])
body.Tip = mirrored3

# Sketch on XZ plane
sketch25 = body.newObject("Sketcher::SketchObject", "Sketch024")
sketch25.AttachmentSupport = (doc.getObject("XZ_Plane"), [""])
sketch25.MapMode = "FlatFace"
add_polygon(sketch25, [(-21, 13.75), (-21, 10.5), (-18.75, 10.5), (-18.75, 13.75)])  # lines 0-3
add_polygon(sketch25, [(18.75, 13.75), (18.75, 10.5), (21, 10.5), (21, 13.75)])  # lines 4-7
sketch25.addConstraint(Sketcher.Constraint("Vertical", 0))
sketch25.addConstraint(Sketcher.Constraint("Horizontal", 1))
sketch25.addConstraint(Sketcher.Constraint("Vertical", 2))
sketch25.addConstraint(Sketcher.Constraint("Horizontal", 3))
sketch25.addConstraint(Sketcher.Constraint("Vertical", 4))
sketch25.addConstraint(Sketcher.Constraint("Horizontal", 5))
sketch25.addConstraint(Sketcher.Constraint("Vertical", 6))
sketch25.addConstraint(Sketcher.Constraint("Horizontal", 7))
sketch25.addConstraint(Sketcher.Constraint("Symmetric", 1, 2, 4, 2, -2))
sketch25.addConstraint(Sketcher.Constraint("Symmetric", 3, 2, 6, 2, -2))
sketch25.addConstraint(Sketcher.Constraint("DistanceX", 0, 2, -1, 1, Q("21 mm")))
sketch25.addConstraint(Sketcher.Constraint("DistanceX", 1, 1, 1, 2, Q("2.25 mm")))
sketch25.addConstraint(Sketcher.Constraint("DistanceY", 0, 2, 0, 1, Q("3.25 mm")))
sketch25.addConstraint(Sketcher.Constraint("DistanceY", -1, 1, 0, 2, Q("10.5 mm")))
pocket18 = body.newObject("PartDesign::Pocket", "Pocket017")
pocket18.Profile = sketch25
pocket18.Length = 1.5

doc.recompute()
